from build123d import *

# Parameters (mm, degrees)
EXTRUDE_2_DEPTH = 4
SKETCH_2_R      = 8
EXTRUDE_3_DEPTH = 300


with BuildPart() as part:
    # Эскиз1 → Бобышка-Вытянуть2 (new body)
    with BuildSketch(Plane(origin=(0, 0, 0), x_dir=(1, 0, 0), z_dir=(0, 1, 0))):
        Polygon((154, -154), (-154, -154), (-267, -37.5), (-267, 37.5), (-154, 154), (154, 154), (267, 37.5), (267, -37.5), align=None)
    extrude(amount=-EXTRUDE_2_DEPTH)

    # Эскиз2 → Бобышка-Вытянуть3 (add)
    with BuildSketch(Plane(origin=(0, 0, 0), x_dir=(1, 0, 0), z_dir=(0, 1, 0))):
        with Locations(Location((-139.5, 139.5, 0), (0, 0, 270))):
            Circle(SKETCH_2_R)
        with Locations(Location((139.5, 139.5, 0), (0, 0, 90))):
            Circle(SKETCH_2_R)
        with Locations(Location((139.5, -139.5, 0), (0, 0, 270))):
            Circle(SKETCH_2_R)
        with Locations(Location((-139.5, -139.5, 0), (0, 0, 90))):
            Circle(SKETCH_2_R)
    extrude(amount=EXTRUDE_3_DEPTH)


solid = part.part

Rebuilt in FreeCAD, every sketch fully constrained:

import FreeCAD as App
import Part
import Sketcher
from FreeCAD import Vector
Q = App.Units.Quantity


def add_polygon(sketch, points):
    """Adds a closed chain of lines whose ends are joined by coincident constraints."""
    first, n = sketch.GeometryCount, len(points)
    for a, b in zip(points, points[1:] + points[:1]):
        sketch.addGeometry(Part.LineSegment(App.Vector(*a, 0), App.Vector(*b, 0)), False)
    for i in range(n):
        sketch.addConstraint(Sketcher.Constraint("Coincident", first + i, 2, first + (i + 1) % n, 1))

doc = App.newDocument("Part")
params = doc.addObject("Spreadsheet::Sheet", "Params")
for row, (alias, value) in enumerate([
    ("sketch1_width", "308 mm"),
    ("sketch1_height", "75 mm"),
    ("pad1_length", "4 mm"),
    ("sketch2_diameter", "16 mm"),
    ("pad2_length", "300 mm"),
], start=1):
    params.set(f"A{row}", alias)
    params.set(f"B{row}", "=" + value)
    params.setAlias(f"B{row}", alias)

body = doc.addObject("PartDesign::Body", "Body")

# Sketch on XZ plane
sketch1 = body.newObject("Sketcher::SketchObject", "Sketch")
sketch1.AttachmentSupport = (doc.getObject("XZ_Plane"), [""])
sketch1.MapMode = "FlatFace"
add_polygon(sketch1, [(-154, 154), (154, 154), (267, 38), (267, -38), (154, -154), (-154, -154), (-267, -38), (-267, 38)])  # lines 0-7
sketch1.addConstraint([
    Sketcher.Constraint("Horizontal", 0),
    Sketcher.Constraint("Vertical", 2),
    Sketcher.Constraint("Horizontal", 4),
    Sketcher.Constraint("Vertical", 6),
    Sketcher.Constraint("Symmetric", 0, 2, 4, 2, -1, 1),
    Sketcher.Constraint("Symmetric", 1, 2, 5, 2, -1, 1),
    Sketcher.Constraint("Parallel", 3, 7),
    Sketcher.Constraint("Horizontal", 2, 2, 5, 2),
    Sketcher.Constraint("Horizontal", 1, 2, 6, 2),
    Sketcher.Constraint("Vertical", 0, 2, 3, 2),
    Sketcher.Constraint("DistanceX", 0, 1, 0, 2, Q("308 mm")),
    Sketcher.Constraint("DistanceY", 2, 2, 2, 1, Q("75 mm")),
    Sketcher.Constraint("DistanceY", -1, 1, 0, 2, Q("154 mm")),
    Sketcher.Constraint("DistanceX", -1, 1, 1, 2, Q("267 mm")),
])
sketch1.setExpression("Constraints[18]", "Params.sketch1_width")
sketch1.setExpression("Constraints[19]", "Params.sketch1_height")
pad1 = body.newObject("PartDesign::Pad", "Pad")
pad1.Profile = sketch1
pad1.setExpression("Length", "Params.pad1_length")

# Sketch on XZ plane
sketch2 = body.newObject("Sketcher::SketchObject", "Sketch001")
sketch2.AttachmentSupport = (doc.getObject("XZ_Plane"), [""])
sketch2.MapMode = "FlatFace"
sketch2.addGeometry([
    Part.Circle(Vector(-140, -140, 0), Vector(0, 0, 1), 8),
    Part.Circle(Vector(140, -140, 0), Vector(0, 0, 1), 8),
    Part.Circle(Vector(140, 140, 0), Vector(0, 0, 1), 8),
    Part.Circle(Vector(-140, 140, 0), Vector(0, 0, 1), 8),
], False)
sketch2.addConstraint([
    Sketcher.Constraint("Equal", 0, 1),
    Sketcher.Constraint("Equal", 1, 2),
    Sketcher.Constraint("Equal", 2, 3),
    Sketcher.Constraint("Symmetric", 0, 3, 2, 3, -1, 1),
    Sketcher.Constraint("Symmetric", 1, 3, 3, 3, -1, 1),
    Sketcher.Constraint("Symmetric", 0, 3, 1, 3, -2),
    Sketcher.Constraint("Diameter", 0, Q("16 mm")),
    Sketcher.Constraint("DistanceX", 0, 3, 1, 3, Q("279 mm")),
    Sketcher.Constraint("DistanceY", 1, 3, 2, 3, Q("279 mm")),
])
sketch2.setExpression("Constraints[6]", "Params.sketch2_diameter")
pad2 = body.newObject("PartDesign::Pad", "Pad001")
pad2.Profile = sketch2
pad2.setExpression("Length", "Params.pad2_length")
pad2.Reversed = True

doc.recompute()
